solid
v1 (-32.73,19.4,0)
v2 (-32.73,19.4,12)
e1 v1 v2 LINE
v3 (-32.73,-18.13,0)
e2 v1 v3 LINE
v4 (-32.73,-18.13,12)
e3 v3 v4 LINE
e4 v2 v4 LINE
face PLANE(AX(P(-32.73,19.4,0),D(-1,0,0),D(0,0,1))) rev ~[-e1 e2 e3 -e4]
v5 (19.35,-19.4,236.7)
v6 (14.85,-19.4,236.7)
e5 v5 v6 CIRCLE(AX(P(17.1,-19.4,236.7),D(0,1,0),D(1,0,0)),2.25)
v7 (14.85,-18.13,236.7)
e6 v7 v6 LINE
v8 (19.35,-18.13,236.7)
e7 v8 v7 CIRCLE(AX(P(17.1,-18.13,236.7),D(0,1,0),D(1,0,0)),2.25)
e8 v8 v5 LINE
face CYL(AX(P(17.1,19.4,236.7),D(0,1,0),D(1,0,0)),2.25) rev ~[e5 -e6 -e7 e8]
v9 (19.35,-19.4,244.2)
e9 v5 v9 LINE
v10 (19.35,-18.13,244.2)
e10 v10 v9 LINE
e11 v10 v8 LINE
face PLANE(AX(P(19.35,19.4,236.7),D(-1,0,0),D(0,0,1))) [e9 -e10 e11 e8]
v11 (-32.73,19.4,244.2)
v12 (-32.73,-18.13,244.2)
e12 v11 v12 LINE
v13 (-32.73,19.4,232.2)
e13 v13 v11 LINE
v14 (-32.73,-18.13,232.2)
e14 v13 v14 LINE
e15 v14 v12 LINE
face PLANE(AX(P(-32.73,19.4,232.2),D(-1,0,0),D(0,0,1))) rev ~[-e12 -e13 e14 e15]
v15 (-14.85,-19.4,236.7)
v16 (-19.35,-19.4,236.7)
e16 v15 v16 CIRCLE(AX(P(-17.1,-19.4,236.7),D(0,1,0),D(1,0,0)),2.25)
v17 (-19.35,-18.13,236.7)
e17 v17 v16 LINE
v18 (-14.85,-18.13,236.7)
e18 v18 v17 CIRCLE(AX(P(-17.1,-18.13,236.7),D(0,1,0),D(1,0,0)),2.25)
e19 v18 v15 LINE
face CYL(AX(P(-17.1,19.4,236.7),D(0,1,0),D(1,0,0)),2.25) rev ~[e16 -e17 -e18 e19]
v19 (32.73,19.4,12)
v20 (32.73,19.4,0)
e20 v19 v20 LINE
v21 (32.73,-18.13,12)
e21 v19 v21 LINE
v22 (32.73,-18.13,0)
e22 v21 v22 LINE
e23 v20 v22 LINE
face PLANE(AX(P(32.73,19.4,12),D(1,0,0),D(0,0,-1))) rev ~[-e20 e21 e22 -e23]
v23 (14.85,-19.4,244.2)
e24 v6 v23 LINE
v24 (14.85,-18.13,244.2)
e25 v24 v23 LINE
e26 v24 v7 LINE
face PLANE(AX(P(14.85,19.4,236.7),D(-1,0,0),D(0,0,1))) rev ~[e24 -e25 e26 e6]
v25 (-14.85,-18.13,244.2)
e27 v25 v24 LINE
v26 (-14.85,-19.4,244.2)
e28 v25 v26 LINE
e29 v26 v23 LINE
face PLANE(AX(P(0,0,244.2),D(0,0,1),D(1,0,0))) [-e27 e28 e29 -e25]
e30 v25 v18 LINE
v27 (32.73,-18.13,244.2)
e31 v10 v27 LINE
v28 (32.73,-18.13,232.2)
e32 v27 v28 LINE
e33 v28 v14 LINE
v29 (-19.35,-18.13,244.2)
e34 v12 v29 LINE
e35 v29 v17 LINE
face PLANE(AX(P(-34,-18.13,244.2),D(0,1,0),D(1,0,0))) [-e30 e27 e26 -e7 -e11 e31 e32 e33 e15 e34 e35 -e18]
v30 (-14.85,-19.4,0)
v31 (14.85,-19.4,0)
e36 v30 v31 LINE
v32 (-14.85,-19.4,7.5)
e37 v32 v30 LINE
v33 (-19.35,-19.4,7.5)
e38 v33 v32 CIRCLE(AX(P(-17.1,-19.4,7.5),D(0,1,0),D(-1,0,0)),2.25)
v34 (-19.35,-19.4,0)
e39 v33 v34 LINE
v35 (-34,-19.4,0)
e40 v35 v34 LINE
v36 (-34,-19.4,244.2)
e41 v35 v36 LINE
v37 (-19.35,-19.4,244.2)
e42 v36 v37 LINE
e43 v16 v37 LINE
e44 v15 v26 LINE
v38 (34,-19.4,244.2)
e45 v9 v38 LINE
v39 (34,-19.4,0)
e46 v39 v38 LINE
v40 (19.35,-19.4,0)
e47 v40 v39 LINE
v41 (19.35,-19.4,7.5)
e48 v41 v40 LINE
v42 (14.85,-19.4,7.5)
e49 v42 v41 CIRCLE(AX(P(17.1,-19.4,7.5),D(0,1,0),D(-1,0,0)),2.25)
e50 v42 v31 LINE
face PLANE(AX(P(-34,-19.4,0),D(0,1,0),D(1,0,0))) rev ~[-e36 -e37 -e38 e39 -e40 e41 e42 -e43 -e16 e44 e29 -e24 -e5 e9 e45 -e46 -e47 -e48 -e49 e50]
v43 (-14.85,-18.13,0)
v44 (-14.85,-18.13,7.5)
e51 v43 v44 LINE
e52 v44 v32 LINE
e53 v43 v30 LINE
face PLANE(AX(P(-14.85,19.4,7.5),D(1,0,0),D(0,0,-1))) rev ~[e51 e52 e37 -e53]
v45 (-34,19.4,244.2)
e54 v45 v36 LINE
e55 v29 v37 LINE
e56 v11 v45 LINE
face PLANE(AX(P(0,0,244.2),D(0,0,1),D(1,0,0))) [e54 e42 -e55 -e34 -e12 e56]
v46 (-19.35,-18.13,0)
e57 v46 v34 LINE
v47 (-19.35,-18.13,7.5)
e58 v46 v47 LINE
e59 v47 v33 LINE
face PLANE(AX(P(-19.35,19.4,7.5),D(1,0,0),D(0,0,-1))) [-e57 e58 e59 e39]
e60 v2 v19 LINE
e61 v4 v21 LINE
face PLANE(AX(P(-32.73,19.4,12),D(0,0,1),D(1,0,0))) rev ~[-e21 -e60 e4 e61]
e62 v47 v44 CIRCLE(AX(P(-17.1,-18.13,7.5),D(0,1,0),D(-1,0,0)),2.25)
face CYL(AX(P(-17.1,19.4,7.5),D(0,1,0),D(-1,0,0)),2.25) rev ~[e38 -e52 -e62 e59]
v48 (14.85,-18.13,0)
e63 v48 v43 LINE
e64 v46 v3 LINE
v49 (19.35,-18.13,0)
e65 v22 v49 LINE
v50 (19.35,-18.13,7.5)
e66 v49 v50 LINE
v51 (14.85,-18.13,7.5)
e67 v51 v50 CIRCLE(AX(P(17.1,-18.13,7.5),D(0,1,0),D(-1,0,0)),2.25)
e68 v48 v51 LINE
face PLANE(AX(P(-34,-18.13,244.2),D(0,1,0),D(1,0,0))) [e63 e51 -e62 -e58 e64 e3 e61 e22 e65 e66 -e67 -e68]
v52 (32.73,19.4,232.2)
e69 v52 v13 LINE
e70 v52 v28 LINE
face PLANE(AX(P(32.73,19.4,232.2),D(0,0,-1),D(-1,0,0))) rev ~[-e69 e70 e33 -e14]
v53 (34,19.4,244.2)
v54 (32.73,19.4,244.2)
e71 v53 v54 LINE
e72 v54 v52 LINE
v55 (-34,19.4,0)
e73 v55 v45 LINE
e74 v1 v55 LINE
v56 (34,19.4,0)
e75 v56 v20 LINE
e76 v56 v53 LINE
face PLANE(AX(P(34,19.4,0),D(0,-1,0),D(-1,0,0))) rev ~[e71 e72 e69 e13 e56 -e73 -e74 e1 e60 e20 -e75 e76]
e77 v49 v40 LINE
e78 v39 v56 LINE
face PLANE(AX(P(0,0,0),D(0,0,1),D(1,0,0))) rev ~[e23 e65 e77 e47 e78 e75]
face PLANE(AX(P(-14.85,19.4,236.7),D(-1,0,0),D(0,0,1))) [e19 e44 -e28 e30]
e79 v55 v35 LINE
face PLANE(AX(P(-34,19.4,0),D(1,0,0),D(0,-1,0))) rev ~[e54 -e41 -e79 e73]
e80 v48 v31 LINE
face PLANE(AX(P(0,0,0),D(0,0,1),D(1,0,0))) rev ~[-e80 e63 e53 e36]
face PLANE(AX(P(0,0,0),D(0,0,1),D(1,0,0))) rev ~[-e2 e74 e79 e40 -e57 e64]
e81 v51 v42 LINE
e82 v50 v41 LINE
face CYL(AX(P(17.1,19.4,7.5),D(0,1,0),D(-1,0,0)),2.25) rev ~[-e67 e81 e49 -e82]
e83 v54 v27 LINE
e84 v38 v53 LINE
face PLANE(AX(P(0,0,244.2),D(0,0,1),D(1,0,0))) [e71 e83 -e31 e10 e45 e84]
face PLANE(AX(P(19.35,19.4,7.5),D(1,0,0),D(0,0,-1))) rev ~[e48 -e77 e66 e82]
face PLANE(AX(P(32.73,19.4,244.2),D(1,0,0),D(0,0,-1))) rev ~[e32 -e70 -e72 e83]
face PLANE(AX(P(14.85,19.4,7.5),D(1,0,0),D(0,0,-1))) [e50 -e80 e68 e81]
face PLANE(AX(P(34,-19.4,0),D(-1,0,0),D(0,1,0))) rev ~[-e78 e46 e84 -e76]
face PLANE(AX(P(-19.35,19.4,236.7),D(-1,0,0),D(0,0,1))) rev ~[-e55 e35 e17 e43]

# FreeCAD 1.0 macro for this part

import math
import FreeCAD as App
import Part
import Sketcher
from FreeCAD import Vector

doc = App.newDocument("Part")
body = doc.addObject("PartDesign::Body", "Body")

sketch1 = doc.addObject("Sketcher::SketchObject", "Sketch")
body.addObject(sketch1)
sketch1.AttachmentSupport = (doc.XY_Plane, [""])
sketch1.MapMode = "FlatFace"
sketch1.addGeometry(Part.LineSegment(Vector(-34, 19.4, 0), Vector(-34, -19.4, 0)), False)
sketch1.addGeometry(Part.LineSegment(Vector(-34, -19.4, 0), Vector(34, -19.4, 0)), False)
sketch1.addGeometry(Part.LineSegment(Vector(34, -19.4, 0), Vector(34, 19.4, 0)), False)
sketch1.addGeometry(Part.LineSegment(Vector(34, 19.4, 0), Vector(-34, 19.4, 0)), False)
sketch1.addConstraint(Sketcher.Constraint("Coincident", 0, 2, 1, 1))
sketch1.addConstraint(Sketcher.Constraint("Coincident", 1, 2, 2, 1))
sketch1.addConstraint(Sketcher.Constraint("Coincident", 2, 2, 3, 1))
sketch1.addConstraint(Sketcher.Constraint("Coincident", 3, 2, 0, 1))
sketch1.addConstraint(Sketcher.Constraint("Vertical", 0))
sketch1.addConstraint(Sketcher.Constraint("Horizontal", 1))
sketch1.addConstraint(Sketcher.Constraint("Vertical", 2))
sketch1.addConstraint(Sketcher.Constraint("Horizontal", 3))
sketch1.addConstraint(Sketcher.Constraint("Symmetric", 0, 2, 2, 2, -1, 1))
sketch1.addConstraint(Sketcher.Constraint("DistanceX", 1, 1, 1, 2, 68.0))
sketch1.addConstraint(Sketcher.Constraint("DistanceY", 0, 2, 0, 1, 38.8))
pad1 = doc.addObject("PartDesign::Pad", "Pad")
body.addObject(pad1)
pad1.Profile = sketch1
pad1.Length = 244.2

sketch2 = doc.addObject("Sketcher::SketchObject", "Sketch001")
body.addObject(sketch2)
sketch2.AttachmentSupport = (doc.XZ_Plane, [""])
sketch2.MapMode = "FlatFace"
sketch2.AttachmentOffset = App.Placement(Vector(0, 0, -19.4), App.Rotation())
sketch2.addGeometry(Part.LineSegment(Vector(-19.35, 244.2, 0), Vector(-14.85, 244.2, 0)), False)
sketch2.addGeometry(Part.LineSegment(Vector(-14.85, 244.2, 0), Vector(-14.85, 236.7, 0)), False)
sketch2.addGeometry(Part.ArcOfCircle(Part.Circle(Vector(-17.1, 236.7, 0), Vector(0, 0, 1), 2.25), math.radians(180), math.radians(360)), False)
sketch2.addGeometry(Part.LineSegment(Vector(-19.35, 236.7, 0), Vector(-19.35, 244.2, 0)), False)
sketch2.addGeometry(Part.LineSegment(Vector(14.85, 244.2, 0), Vector(19.35, 244.2, 0)), False)
sketch2.addGeometry(Part.LineSegment(Vector(19.35, 244.2, 0), Vector(19.35, 236.7, 0)), False)
sketch2.addGeometry(Part.ArcOfCircle(Part.Circle(Vector(17.1, 236.7, 0), Vector(0, 0, 1), 2.25), math.radians(180), math.radians(360)), False)
sketch2.addGeometry(Part.LineSegment(Vector(14.85, 236.7, 0), Vector(14.85, 244.2, 0)), False)
sketch2.addGeometry(Part.LineSegment(Vector(19.35, 7.5, 0), Vector(19.35, 0, 0)), False)
sketch2.addGeometry(Part.LineSegment(Vector(19.35, 0, 0), Vector(14.85, 0, 0)), False)
sketch2.addGeometry(Part.LineSegment(Vector(14.85, 0, 0), Vector(14.85, 7.5, 0)), False)
sketch2.addGeometry(Part.ArcOfCircle(Part.Circle(Vector(17.1, 7.5, 0), Vector(0, 0, 1), 2.25), math.radians(0), math.radians(180)), False)
sketch2.addGeometry(Part.LineSegment(Vector(-14.85, 7.5, 0), Vector(-14.85, 0, 0)), False)
sketch2.addGeometry(Part.LineSegment(Vector(-14.85, 0, 0), Vector(-19.35, 0, 0)), False)
sketch2.addGeometry(Part.LineSegment(Vector(-19.35, 0, 0), Vector(-19.35, 7.5, 0)), False)
sketch2.addGeometry(Part.ArcOfCircle(Part.Circle(Vector(-17.1, 7.5, 0), Vector(0, 0, 1), 2.25), math.radians(0), math.radians(180)), False)
sketch2.addConstraint(Sketcher.Constraint("Coincident", 0, 2, 1, 1))
sketch2.addConstraint(Sketcher.Constraint("Tangent", 1, 2, 2, 2))
sketch2.addConstraint(Sketcher.Constraint("Tangent", 2, 1, 3, 1))
sketch2.addConstraint(Sketcher.Constraint("Coincident", 3, 2, 0, 1))
sketch2.addConstraint(Sketcher.Constraint("Coincident", 4, 2, 5, 1))
sketch2.addConstraint(Sketcher.Constraint("Tangent", 5, 2, 6, 2))
sketch2.addConstraint(Sketcher.Constraint("Tangent", 6, 1, 7, 1))
sketch2.addConstraint(Sketcher.Constraint("Coincident", 7, 2, 4, 1))
sketch2.addConstraint(Sketcher.Constraint("Coincident", 8, 2, 9, 1))
sketch2.addConstraint(Sketcher.Constraint("Coincident", 9, 2, 10, 1))
sketch2.addConstraint(Sketcher.Constraint("Tangent", 10, 2, 11, 2))
sketch2.addConstraint(Sketcher.Constraint("Tangent", 11, 1, 8, 1))
sketch2.addConstraint(Sketcher.Constraint("Coincident", 12, 2, 13, 1))
sketch2.addConstraint(Sketcher.Constraint("Coincident", 13, 2, 14, 1))
sketch2.addConstraint(Sketcher.Constraint("Tangent", 14, 2, 15, 2))
sketch2.addConstraint(Sketcher.Constraint("Tangent", 15, 1, 12, 1))
sketch2.addConstraint(Sketcher.Constraint("Horizontal", 0))
sketch2.addConstraint(Sketcher.Constraint("Vertical", 1))
sketch2.addConstraint(Sketcher.Constraint("Vertical", 3))
sketch2.addConstraint(Sketcher.Constraint("Horizontal", 4))
sketch2.addConstraint(Sketcher.Constraint("Vertical", 5))
sketch2.addConstraint(Sketcher.Constraint("Vertical", 7))
sketch2.addConstraint(Sketcher.Constraint("Vertical", 8))
sketch2.addConstraint(Sketcher.Constraint("Horizontal", 9))
sketch2.addConstraint(Sketcher.Constraint("Vertical", 10))
sketch2.addConstraint(Sketcher.Constraint("Vertical", 12))
sketch2.addConstraint(Sketcher.Constraint("Horizontal", 13))
sketch2.addConstraint(Sketcher.Constraint("Vertical", 14))
sketch2.addConstraint(Sketcher.Constraint("Equal", 2, 6))
sketch2.addConstraint(Sketcher.Constraint("Equal", 6, 11))
sketch2.addConstraint(Sketcher.Constraint("Equal", 11, 15))
sketch2.addConstraint(Sketcher.Constraint("Symmetric", 9, 2, 12, 2, -1, 1))
sketch2.addConstraint(Sketcher.Constraint("Symmetric", 2, 3, 6, 3, -2))
sketch2.addConstraint(Sketcher.Constraint("PointOnObject", 8, 2, -1))
sketch2.addConstraint(Sketcher.Constraint("Horizontal", 11, 3, 15, 3))
sketch2.addConstraint(Sketcher.Constraint("Horizontal", 3, 2, 4, 2))
sketch2.addConstraint(Sketcher.Constraint("Vertical", 6, 3, 11, 3))
sketch2.addConstraint(Sketcher.Constraint("Equal", 7, 8))
sketch2.addConstraint(Sketcher.Constraint("Radius", 2, 2.25))
sketch2.addConstraint(Sketcher.Constraint("DistanceX", 2, 3, 6, 3, 34.2))
sketch2.addConstraint(Sketcher.Constraint("DistanceY", 11, 3, 6, 3, 229.2))
sketch2.addConstraint(Sketcher.Constraint("DistanceY", 1, 2, 1, 1, 7.5))
pocket1 = doc.addObject("PartDesign::Pocket", "Pocket")
body.addObject(pocket1)
pocket1.Profile = sketch2
pocket1.Length = 38.8
pocket1.Reversed = True

sketch3 = doc.addObject("Sketcher::SketchObject", "Sketch002")
body.addObject(sketch3)
sketch3.AttachmentSupport = (doc.XZ_Plane, [""])
sketch3.MapMode = "FlatFace"
sketch3.AttachmentOffset = App.Placement(Vector(0, 0, -19.4), App.Rotation())
sketch3.addGeometry(Part.LineSegment(Vector(-32.73, 244.2, 0), Vector(32.73, 244.2, 0)), False)
sketch3.addGeometry(Part.LineSegment(Vector(32.73, 244.2, 0), Vector(32.73, 232.2, 0)), False)
sketch3.addGeometry(Part.LineSegment(Vector(32.73, 232.2, 0), Vector(-32.73, 232.2, 0)), False)
sketch3.addGeometry(Part.LineSegment(Vector(-32.73, 232.2, 0), Vector(-32.73, 244.2, 0)), False)
sketch3.addGeometry(Part.LineSegment(Vector(-32.73, 0, 0), Vector(-32.73, 12, 0)), False)
sketch3.addGeometry(Part.LineSegment(Vector(-32.73, 12, 0), Vector(32.73, 12, 0)), False)
sketch3.addGeometry(Part.LineSegment(Vector(32.73, 12, 0), Vector(32.73, 0, 0)), False)
sketch3.addGeometry(Part.LineSegment(Vector(32.73, 0, 0), Vector(-32.73, 0, 0)), False)
sketch3.addConstraint(Sketcher.Constraint("Coincident", 0, 2, 1, 1))
sketch3.addConstraint(Sketcher.Constraint("Coincident", 1, 2, 2, 1))
sketch3.addConstraint(Sketcher.Constraint("Coincident", 2, 2, 3, 1))
sketch3.addConstraint(Sketcher.Constraint("Coincident", 3, 2, 0, 1))
sketch3.addConstraint(Sketcher.Constraint("Coincident", 4, 2, 5, 1))
sketch3.addConstraint(Sketcher.Constraint("Coincident", 5, 2, 6, 1))
sketch3.addConstraint(Sketcher.Constraint("Coincident", 6, 2, 7, 1))
sketch3.addConstraint(Sketcher.Constraint("Coincident", 7, 2, 4, 1))
sketch3.addConstraint(Sketcher.Constraint("Horizontal", 0))
sketch3.addConstraint(Sketcher.Constraint("Vertical", 1))
sketch3.addConstraint(Sketcher.Constraint("Horizontal", 2))
sketch3.addConstraint(Sketcher.Constraint("Vertical", 3))
sketch3.addConstraint(Sketcher.Constraint("Vertical", 4))
sketch3.addConstraint(Sketcher.Constraint("Horizontal", 5))
sketch3.addConstraint(Sketcher.Constraint("Vertical", 6))
sketch3.addConstraint(Sketcher.Constraint("Horizontal", 7))
sketch3.addConstraint(Sketcher.Constraint("Symmetric", 6, 2, 7, 2, -1, 1))
sketch3.addConstraint(Sketcher.Constraint("Vertical", 3, 2, 4, 2))
sketch3.addConstraint(Sketcher.Constraint("Vertical", 1, 2, 5, 2))
sketch3.addConstraint(Sketcher.Constraint("Equal", 3, 4))
sketch3.addConstraint(Sketcher.Constraint("DistanceY", 4, 2, 2, 2, 220.2))
sketch3.addConstraint(Sketcher.Constraint("DistanceY", 1, 2, 1, 1, 12.0))
sketch3.addConstraint(Sketcher.Constraint("DistanceX", 0, 1, 0, 2, 65.46))
pocket2 = doc.addObject("PartDesign::Pocket", "Pocket001")
body.addObject(pocket2)
pocket2.Profile = sketch3
pocket2.Length = 37.53
pocket2.Reversed = True

doc.recompute()
